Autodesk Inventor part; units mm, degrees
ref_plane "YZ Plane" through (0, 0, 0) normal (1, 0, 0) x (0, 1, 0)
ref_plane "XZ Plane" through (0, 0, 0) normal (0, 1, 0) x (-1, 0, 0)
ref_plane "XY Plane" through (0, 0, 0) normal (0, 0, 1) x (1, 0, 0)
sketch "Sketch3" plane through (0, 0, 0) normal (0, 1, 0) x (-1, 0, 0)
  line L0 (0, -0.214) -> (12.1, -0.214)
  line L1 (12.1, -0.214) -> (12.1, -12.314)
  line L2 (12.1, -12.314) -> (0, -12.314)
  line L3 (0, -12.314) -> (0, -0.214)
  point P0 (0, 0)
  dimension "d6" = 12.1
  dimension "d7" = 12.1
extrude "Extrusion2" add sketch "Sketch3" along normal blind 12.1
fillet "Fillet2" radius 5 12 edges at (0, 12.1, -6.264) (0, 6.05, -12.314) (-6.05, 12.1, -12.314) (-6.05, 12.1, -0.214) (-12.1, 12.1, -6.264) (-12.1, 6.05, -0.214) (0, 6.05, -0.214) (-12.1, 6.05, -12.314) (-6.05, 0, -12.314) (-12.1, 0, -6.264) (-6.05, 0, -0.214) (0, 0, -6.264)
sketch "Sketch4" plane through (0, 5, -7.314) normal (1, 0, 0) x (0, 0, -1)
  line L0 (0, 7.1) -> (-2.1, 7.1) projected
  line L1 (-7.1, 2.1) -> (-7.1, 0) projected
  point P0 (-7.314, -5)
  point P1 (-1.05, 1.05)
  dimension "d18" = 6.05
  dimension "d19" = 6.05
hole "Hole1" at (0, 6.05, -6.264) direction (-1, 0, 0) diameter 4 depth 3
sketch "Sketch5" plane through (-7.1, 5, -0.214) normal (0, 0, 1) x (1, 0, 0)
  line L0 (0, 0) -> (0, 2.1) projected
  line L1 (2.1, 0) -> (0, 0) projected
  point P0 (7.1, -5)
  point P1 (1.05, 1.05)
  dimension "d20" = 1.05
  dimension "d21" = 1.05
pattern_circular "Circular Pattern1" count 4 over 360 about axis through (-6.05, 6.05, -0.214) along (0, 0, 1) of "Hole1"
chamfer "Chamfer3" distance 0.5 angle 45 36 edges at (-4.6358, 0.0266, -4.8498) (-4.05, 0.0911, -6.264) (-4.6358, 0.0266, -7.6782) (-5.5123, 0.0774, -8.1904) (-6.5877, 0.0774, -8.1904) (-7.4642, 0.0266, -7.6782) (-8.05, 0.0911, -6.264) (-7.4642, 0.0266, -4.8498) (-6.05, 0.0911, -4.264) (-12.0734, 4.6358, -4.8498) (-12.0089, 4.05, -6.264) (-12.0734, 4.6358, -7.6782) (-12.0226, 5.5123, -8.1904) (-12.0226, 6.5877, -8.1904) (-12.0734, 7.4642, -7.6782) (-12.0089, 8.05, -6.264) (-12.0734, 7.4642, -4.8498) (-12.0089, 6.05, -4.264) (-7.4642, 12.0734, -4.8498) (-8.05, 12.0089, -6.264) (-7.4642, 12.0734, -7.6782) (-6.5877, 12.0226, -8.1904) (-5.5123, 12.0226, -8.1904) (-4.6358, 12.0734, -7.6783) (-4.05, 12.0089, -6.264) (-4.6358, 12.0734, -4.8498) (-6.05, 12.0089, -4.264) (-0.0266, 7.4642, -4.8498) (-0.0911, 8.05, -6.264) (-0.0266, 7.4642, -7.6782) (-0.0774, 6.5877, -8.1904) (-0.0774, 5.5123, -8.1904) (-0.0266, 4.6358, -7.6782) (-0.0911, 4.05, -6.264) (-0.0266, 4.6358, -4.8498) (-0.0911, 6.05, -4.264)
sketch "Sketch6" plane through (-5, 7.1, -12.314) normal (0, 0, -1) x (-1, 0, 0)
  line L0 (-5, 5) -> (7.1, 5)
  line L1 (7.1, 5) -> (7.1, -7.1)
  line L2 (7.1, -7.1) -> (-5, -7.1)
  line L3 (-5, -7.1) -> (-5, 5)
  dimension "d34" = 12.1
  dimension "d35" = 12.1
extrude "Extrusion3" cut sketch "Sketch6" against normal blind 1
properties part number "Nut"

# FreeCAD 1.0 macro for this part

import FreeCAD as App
import Part
import Sketcher


def edges_at(feature, points):
    """Names of the edges that pass closest to the given points."""
    edges = feature.Shape.Edges
    near = lambda p: min(range(len(edges)), key=lambda i: edges[i].distToShape(Part.Vertex(*p))[0])
    return sorted({f"Edge{near(p) + 1}" for p in points})


def add_polygon(sketch, points):
    """Adds a closed chain of lines whose ends are joined by coincident constraints."""
    first, n = sketch.GeometryCount, len(points)
    for a, b in zip(points, points[1:] + points[:1]):
        sketch.addGeometry(Part.LineSegment(App.Vector(*a, 0), App.Vector(*b, 0)), False)
    for i in range(n):
        sketch.addConstraint(Sketcher.Constraint("Coincident", first + i, 2, first + (i + 1) % n, 1))

doc = App.newDocument("Part")
params = doc.addObject("Spreadsheet::Sheet", "Params")
for row, (alias, value) in enumerate([
    ("sketch1_width", "12.1 mm"),
    ("pad1_length", "12.1 mm"),
    ("fillet_radius", "5 mm"),
    ("sketch2_diameter", "4 mm"),
    ("hole_diameter", "4 mm"),
    ("hole_depth", "3 mm"),
    ("chamfer_size", "0.5 mm"),
    ("sketch3_width", "12.1 mm"),
    ("pocket1_length", "1 mm"),
], start=1):
    params.set(f"A{row}", alias)
    params.set(f"B{row}", "=" + value)
    params.setAlias(f"B{row}", alias)

body = doc.addObject("PartDesign::Body", "Body")

sketch1 = body.newObject("Sketcher::SketchObject", "Sketch")
sketch1.AttachmentSupport = (doc.getObject("XZ_Plane"), [""])
sketch1.MapMode = "FlatFace"
add_polygon(sketch1, [(-12, 0), (0, 0), (0, -12), (-12, -12)])
sketch1.addConstraint([
    Sketcher.Constraint("Horizontal", 0),
    Sketcher.Constraint("Vertical", 1),
    Sketcher.Constraint("Horizontal", 2),
    Sketcher.Constraint("Vertical", 3),
    Sketcher.Constraint("PointOnObject", 0, 2, -2),
    Sketcher.Constraint("Equal", 2, 1),
    Sketcher.Constraint("DistanceX", 0, 1, 0, 2, 12.1),
    Sketcher.Constraint("DistanceY", 0, 2, -1, 1, 0.214),
])
sketch1.setExpression("Constraints[10]", "Params.sketch1_width")
pad1 = body.newObject("PartDesign::Pad", "Pad")
pad1.Profile = sketch1
pad1.setExpression("Length", "Params.pad1_length")
pad1.Reversed = True
doc.recompute()

fillet = body.newObject("PartDesign::Fillet", "Fillet")
fillet.Base = (pad1, ["Edge1"])
fillet.UseAllEdges = True
fillet.setExpression("Radius", "Params.fillet_radius")

sketch2 = body.newObject("Sketcher::SketchObject", "Sketch001")
sketch2.AttachmentSupport = (doc.getObject("YZ_Plane"), [""])
sketch2.MapMode = "FlatFace"
sketch2.addGeometry(Part.Circle(App.Vector(6, -6.3, 0), App.Vector(0, 0, 1), 2), False)
sketch2.addConstraint([
    Sketcher.Constraint("Diameter", 0, 4.0),
    Sketcher.Constraint("DistanceX", -1, 1, 0, 3, 6.05),
    Sketcher.Constraint("DistanceY", 0, 3, -1, 1, 6.264),
])
sketch2.setExpression("Constraints[0]", "Params.sketch2_diameter")
doc.recompute()
hole = body.newObject("PartDesign::Hole", "Hole")
hole.Profile = sketch2
hole.ThreadType = "None"
hole.setExpression("Diameter", "Params.hole_diameter")
hole.DepthType = "Dimension"
hole.setExpression("Depth", "Params.hole_depth")
hole.DrillPoint = "Flat"
doc.recompute()

datumline = body.newObject("PartDesign::Line", "DatumLine")
datumline.Placement = App.Placement(App.Vector(-6.05, 6.05, 0), App.Rotation(App.Vector(0, 0, 1), App.Vector(0, 0, 1)))
polarpattern = body.newObject("PartDesign::PolarPattern", "PolarPattern")
polarpattern.Originals = [hole]
polarpattern.Axis = (datumline, [""])
polarpattern.Angle = 360
polarpattern.Occurrences = 4
body.Tip = polarpattern
doc.recompute()

chamfer = body.newObject("PartDesign::Chamfer", "Chamfer")
chamfer.Base = (polarpattern, edges_at(polarpattern, [
    (-4.636, 0.027, -4.85),
    (-4.05, 0.091, -6.264),
    (-4.636, 0.027, -7.678),
    (-5.512, 0.077, -8.19),
    (-6.588, 0.077, -8.19),
    (-7.464, 0.027, -7.678),
    (-8.05, 0.091, -6.264),
    (-7.464, 0.027, -4.85),
    (-6.05, 0.091, -4.264),
    (-12.073, 4.636, -4.85),
    (-12.009, 4.05, -6.264),
    (-12.073, 4.636, -7.678),
    (-12.023, 5.512, -8.19),
    (-12.023, 6.588, -8.19),
    (-12.073, 7.464, -7.678),
    (-12.009, 8.05, -6.264),
    (-12.073, 7.464, -4.85),
    (-12.009, 6.05, -4.264),
    (-7.464, 12.073, -4.85),
    (-8.05, 12.009, -6.264),
    (-7.464, 12.073, -7.678),
    (-6.588, 12.023, -8.19),
    (-5.512, 12.023, -8.19),
    (-4.636, 12.073, -7.678),
    (-4.05, 12.009, -6.264),
    (-4.636, 12.073, -4.85),
    (-6.05, 12.009, -4.264),
    (-0.027, 7.464, -4.85),
    (-0.091, 8.05, -6.264),
    (-0.027, 7.464, -7.678),
    (-0.077, 6.588, -8.19),
    (-0.077, 5.512, -8.19),
    (-0.027, 4.636, -7.678),
    (-0.091, 4.05, -6.264),
    (-0.027, 4.636, -4.85),
    (-0.091, 6.05, -4.264),
]))
chamfer.setExpression("Size", "Params.chamfer_size")

sketch3 = body.newObject("Sketcher::SketchObject", "Sketch002")
sketch3.AttachmentSupport = (doc.getObject("XY_Plane"), [""])
sketch3.MapMode = "FlatFace"
sketch3.AttachmentOffset = App.Placement(App.Vector(0, 0, -12.314), App.Rotation())
add_polygon(sketch3, [(-12, 12), (0, 12), (0, 0), (-12, 0)])
sketch3.addConstraint([
    Sketcher.Constraint("Horizontal", 0),
    Sketcher.Constraint("Vertical", 1),
    Sketcher.Constraint("Horizontal", 2),
    Sketcher.Constraint("Vertical", 3),
    Sketcher.Constraint("Coincident", 1, 2, -1, 1),
    Sketcher.Constraint("Equal", 2, 1),
    Sketcher.Constraint("DistanceX", 0, 1, 0, 2, 12.1),
])
sketch3.setExpression("Constraints[10]", "Params.sketch3_width")
pocket1 = body.newObject("PartDesign::Pocket", "Pocket")
pocket1.Profile = sketch3
pocket1.setExpression("Length", "Params.pocket1_length")
pocket1.Reversed = True

doc.recompute()
